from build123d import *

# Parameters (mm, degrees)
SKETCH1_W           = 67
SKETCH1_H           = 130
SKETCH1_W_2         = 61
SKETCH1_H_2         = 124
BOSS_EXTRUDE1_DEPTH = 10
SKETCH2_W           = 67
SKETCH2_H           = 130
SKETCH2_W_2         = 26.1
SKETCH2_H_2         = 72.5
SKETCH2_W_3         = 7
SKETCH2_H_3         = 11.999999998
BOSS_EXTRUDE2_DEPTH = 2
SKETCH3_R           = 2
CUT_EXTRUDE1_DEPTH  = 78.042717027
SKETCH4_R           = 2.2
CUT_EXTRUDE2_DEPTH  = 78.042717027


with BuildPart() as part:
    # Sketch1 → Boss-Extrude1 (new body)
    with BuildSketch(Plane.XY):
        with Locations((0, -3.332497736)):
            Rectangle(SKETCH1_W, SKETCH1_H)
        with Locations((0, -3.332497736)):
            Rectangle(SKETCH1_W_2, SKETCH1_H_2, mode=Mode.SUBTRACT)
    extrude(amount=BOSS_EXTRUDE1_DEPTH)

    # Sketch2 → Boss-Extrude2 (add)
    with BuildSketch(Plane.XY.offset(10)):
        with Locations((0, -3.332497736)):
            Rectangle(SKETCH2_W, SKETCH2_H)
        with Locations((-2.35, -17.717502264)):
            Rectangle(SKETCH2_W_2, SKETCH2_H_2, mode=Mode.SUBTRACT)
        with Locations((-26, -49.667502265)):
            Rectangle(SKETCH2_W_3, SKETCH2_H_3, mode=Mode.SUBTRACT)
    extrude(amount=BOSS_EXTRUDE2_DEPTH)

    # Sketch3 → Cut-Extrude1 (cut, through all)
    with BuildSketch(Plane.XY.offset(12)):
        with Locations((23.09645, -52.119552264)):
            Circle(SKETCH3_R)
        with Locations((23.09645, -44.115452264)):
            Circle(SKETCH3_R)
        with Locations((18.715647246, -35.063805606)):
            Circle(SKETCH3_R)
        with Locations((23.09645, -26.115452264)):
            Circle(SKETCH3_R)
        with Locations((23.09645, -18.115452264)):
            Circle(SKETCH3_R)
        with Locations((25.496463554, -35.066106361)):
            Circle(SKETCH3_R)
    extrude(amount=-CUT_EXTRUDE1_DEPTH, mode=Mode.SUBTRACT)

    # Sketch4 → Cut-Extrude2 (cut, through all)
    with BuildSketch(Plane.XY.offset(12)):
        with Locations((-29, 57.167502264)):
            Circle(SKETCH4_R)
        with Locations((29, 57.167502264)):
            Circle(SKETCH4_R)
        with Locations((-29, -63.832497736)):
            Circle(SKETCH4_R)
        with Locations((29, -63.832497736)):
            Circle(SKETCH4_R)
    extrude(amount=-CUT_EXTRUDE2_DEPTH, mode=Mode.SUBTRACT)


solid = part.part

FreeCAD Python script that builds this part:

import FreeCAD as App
import Part
import Sketcher


def add_polygon(sketch, points):
    """Adds a closed chain of lines whose ends are joined by coincident constraints."""
    first, n = sketch.GeometryCount, len(points)
    for a, b in zip(points, points[1:] + points[:1]):
        sketch.addGeometry(Part.LineSegment(App.Vector(*a, 0), App.Vector(*b, 0)), False)
    for i in range(n):
        sketch.addConstraint(Sketcher.Constraint("Coincident", first + i, 2, first + (i + 1) % n, 1))

doc = App.newDocument("Part")
body = doc.addObject("PartDesign::Body", "Body")

sketch1 = body.newObject("Sketcher::SketchObject", "Sketch")
sketch1.AttachmentSupport = (doc.getObject("XY_Plane"), [""])
sketch1.MapMode = "FlatFace"
add_polygon(sketch1, [(-34, 62), (-34, -68), (34, -68), (34, 62)])
add_polygon(sketch1, [(30, -65), (-30, -65), (-30, 59), (30, 59)])
sketch1.addConstraint([
    Sketcher.Constraint("Vertical", 0),
    Sketcher.Constraint("Horizontal", 1),
    Sketcher.Constraint("Vertical", 2),
    Sketcher.Constraint("Horizontal", 3),
    Sketcher.Constraint("Horizontal", 4),
    Sketcher.Constraint("Vertical", 5),
    Sketcher.Constraint("Horizontal", 6),
    Sketcher.Constraint("Vertical", 7),
    Sketcher.Constraint("DistanceX", 1, 1, 1, 2, 67.0),
    Sketcher.Constraint("DistanceX", 4, 2, 4, 1, 61.0),
    Sketcher.Constraint("DistanceY", 0, 2, 0, 1, 130.0),
    Sketcher.Constraint("DistanceY", 5, 1, 5, 2, 124.0),
    Sketcher.Constraint("DistanceX", 0, 2, 4, 2, 3.0),
    Sketcher.Constraint("DistanceY", 0, 2, 4, 2, 3.0),
    Sketcher.Constraint("DistanceX", 0, 2, -1, 1, 33.5),
    Sketcher.Constraint("DistanceY", 0, 2, -1, 1, 68.332498),
])
pad1 = body.newObject("PartDesign::Pad", "Pad")
pad1.Profile = sketch1
pad1.Length = 10

sketch2 = body.newObject("Sketcher::SketchObject", "Sketch001")
sketch2.AttachmentSupport = (doc.getObject("XY_Plane"), [""])
sketch2.MapMode = "FlatFace"
sketch2.AttachmentOffset = App.Placement(App.Vector(0, 0, 10), App.Rotation())
add_polygon(sketch2, [(-34, 62), (-34, -68), (34, -68), (34, 62)])
add_polygon(sketch2, [(-22, -56), (-30, -56), (-30, -44), (-22, -44)])
add_polygon(sketch2, [(11, -54), (-15, -54), (-15, 19), (11, 19)])
sketch2.addConstraint([
    Sketcher.Constraint("Vertical", 0),
    Sketcher.Constraint("Horizontal", 1),
    Sketcher.Constraint("Vertical", 2),
    Sketcher.Constraint("Horizontal", 3),
    Sketcher.Constraint("Horizontal", 4),
    Sketcher.Constraint("Vertical", 5),
    Sketcher.Constraint("Horizontal", 6),
    Sketcher.Constraint("Vertical", 7),
    Sketcher.Constraint("Horizontal", 8),
    Sketcher.Constraint("Vertical", 9),
    Sketcher.Constraint("Horizontal", 10),
    Sketcher.Constraint("Vertical", 11),
    Sketcher.Constraint("DistanceX", 1, 1, 1, 2, 67.0),
    Sketcher.Constraint("DistanceX", 4, 2, 4, 1, 7.0),
    Sketcher.Constraint("DistanceY", 0, 2, 0, 1, 130.0),
    Sketcher.Constraint("DistanceY", 5, 1, 5, 2, 12.0),
    Sketcher.Constraint("DistanceX", 8, 2, 8, 1, 26.1),
    Sketcher.Constraint("DistanceY", 9, 1, 9, 2, 72.5),
    Sketcher.Constraint("DistanceX", 0, 2, 4, 2, 4.0),
    Sketcher.Constraint("DistanceX", 0, 2, -1, 1, 33.5),
    Sketcher.Constraint("DistanceX", 8, 2, -1, 1, 15.4),
    Sketcher.Constraint("DistanceY", 7, 2, 8, 2, 1.7),
    Sketcher.Constraint("DistanceY", 0, 2, -1, 1, 68.332498),
    Sketcher.Constraint("DistanceY", 4, 2, -1, 1, 55.667502),
])
pad2 = body.newObject("PartDesign::Pad", "Pad001")
pad2.Profile = sketch2
pad2.Length = 2

sketch3 = body.newObject("Sketcher::SketchObject", "Sketch002")
sketch3.AttachmentSupport = (doc.getObject("XY_Plane"), [""])
sketch3.MapMode = "FlatFace"
sketch3.AttachmentOffset = App.Placement(App.Vector(0, 0, 12), App.Rotation())
sketch3.addGeometry([
    Part.Circle(App.Vector(23.1, -52.1, 0), App.Vector(0, 0, 1), 2),
    Part.Circle(App.Vector(23.1, -44.1, 0), App.Vector(0, 0, 1), 2),
    Part.Circle(App.Vector(18.7, -35.1, 0), App.Vector(0, 0, 1), 2),
    Part.Circle(App.Vector(23.1, -26.1, 0), App.Vector(0, 0, 1), 2),
    Part.Circle(App.Vector(23.1, -18.1, 0), App.Vector(0, 0, 1), 2),
    Part.Circle(App.Vector(25.5, -35.1, 0), App.Vector(0, 0, 1), 2),
], False)
sketch3.addConstraint([
    Sketcher.Constraint("Equal", 0, 1),
    Sketcher.Constraint("Equal", 1, 2),
    Sketcher.Constraint("Equal", 2, 3),
    Sketcher.Constraint("Equal", 3, 4),
    Sketcher.Constraint("Equal", 4, 5),
    Sketcher.Constraint("Vertical", 0, 3, 1, 3),
    Sketcher.Constraint("Vertical", 1, 3, 3, 3),
    Sketcher.Constraint("Vertical", 3, 3, 4, 3),
    Sketcher.Constraint("Diameter", 0, 4.0),
    Sketcher.Constraint("DistanceY", 1, 3, 3, 3, 18.0),
    Sketcher.Constraint("DistanceY", 3, 3, 4, 3, 8.0),
    Sketcher.Constraint("DistanceY", 0, 3, 1, 3, 8.0041),
    Sketcher.Constraint("DistanceY", 5, 3, 2, 3, 0.002301),
    Sketcher.Constraint("DistanceX", -1, 1, 0, 3, 23.09645),
    Sketcher.Constraint("DistanceY", 0, 3, -1, 1, 52.119552),
    Sketcher.Constraint("DistanceX", -1, 1, 2, 3, 18.715647),
    Sketcher.Constraint("DistanceY", 2, 3, -1, 1, 35.063806),
    Sketcher.Constraint("DistanceX", -1, 1, 5, 3, 25.496464),
])
pocket1 = body.newObject("PartDesign::Pocket", "Pocket")
pocket1.Profile = sketch3
pocket1.Type = "ThroughAll"

sketch4 = body.newObject("Sketcher::SketchObject", "Sketch003")
sketch4.AttachmentSupport = (doc.getObject("XY_Plane"), [""])
sketch4.MapMode = "FlatFace"
sketch4.AttachmentOffset = App.Placement(App.Vector(0, 0, 12), App.Rotation())
sketch4.addGeometry([
    Part.Circle(App.Vector(-29, 57.2, 0), App.Vector(0, 0, 1), 2.2),
    Part.Circle(App.Vector(29, 57.2, 0), App.Vector(0, 0, 1), 2.2),
    Part.Circle(App.Vector(-29, -63.8, 0), App.Vector(0, 0, 1), 2.2),
    Part.Circle(App.Vector(29, -63.8, 0), App.Vector(0, 0, 1), 2.2),
], False)
sketch4.addConstraint([
    Sketcher.Constraint("Equal", 0, 1),
    Sketcher.Constraint("Equal", 1, 2),
    Sketcher.Constraint("Equal", 2, 3),
    Sketcher.Constraint("Symmetric", 0, 3, 1, 3, -2),
    Sketcher.Constraint("Symmetric", 2, 3, 3, 3, -2),
    Sketcher.Constraint("Vertical", 0, 3, 2, 3),
    Sketcher.Constraint("Diameter", 0, 4.4),
    Sketcher.Constraint("DistanceX", 0, 3, -1, 1, 29.0),
    Sketcher.Constraint("DistanceY", 2, 3, 0, 3, 121.0),
    Sketcher.Constraint("DistanceY", -1, 1, 0, 3, 57.167502),
])
pocket2 = body.newObject("PartDesign::Pocket", "Pocket001")
pocket2.Profile = sketch4
pocket2.Type = "ThroughAll"

doc.recompute()
